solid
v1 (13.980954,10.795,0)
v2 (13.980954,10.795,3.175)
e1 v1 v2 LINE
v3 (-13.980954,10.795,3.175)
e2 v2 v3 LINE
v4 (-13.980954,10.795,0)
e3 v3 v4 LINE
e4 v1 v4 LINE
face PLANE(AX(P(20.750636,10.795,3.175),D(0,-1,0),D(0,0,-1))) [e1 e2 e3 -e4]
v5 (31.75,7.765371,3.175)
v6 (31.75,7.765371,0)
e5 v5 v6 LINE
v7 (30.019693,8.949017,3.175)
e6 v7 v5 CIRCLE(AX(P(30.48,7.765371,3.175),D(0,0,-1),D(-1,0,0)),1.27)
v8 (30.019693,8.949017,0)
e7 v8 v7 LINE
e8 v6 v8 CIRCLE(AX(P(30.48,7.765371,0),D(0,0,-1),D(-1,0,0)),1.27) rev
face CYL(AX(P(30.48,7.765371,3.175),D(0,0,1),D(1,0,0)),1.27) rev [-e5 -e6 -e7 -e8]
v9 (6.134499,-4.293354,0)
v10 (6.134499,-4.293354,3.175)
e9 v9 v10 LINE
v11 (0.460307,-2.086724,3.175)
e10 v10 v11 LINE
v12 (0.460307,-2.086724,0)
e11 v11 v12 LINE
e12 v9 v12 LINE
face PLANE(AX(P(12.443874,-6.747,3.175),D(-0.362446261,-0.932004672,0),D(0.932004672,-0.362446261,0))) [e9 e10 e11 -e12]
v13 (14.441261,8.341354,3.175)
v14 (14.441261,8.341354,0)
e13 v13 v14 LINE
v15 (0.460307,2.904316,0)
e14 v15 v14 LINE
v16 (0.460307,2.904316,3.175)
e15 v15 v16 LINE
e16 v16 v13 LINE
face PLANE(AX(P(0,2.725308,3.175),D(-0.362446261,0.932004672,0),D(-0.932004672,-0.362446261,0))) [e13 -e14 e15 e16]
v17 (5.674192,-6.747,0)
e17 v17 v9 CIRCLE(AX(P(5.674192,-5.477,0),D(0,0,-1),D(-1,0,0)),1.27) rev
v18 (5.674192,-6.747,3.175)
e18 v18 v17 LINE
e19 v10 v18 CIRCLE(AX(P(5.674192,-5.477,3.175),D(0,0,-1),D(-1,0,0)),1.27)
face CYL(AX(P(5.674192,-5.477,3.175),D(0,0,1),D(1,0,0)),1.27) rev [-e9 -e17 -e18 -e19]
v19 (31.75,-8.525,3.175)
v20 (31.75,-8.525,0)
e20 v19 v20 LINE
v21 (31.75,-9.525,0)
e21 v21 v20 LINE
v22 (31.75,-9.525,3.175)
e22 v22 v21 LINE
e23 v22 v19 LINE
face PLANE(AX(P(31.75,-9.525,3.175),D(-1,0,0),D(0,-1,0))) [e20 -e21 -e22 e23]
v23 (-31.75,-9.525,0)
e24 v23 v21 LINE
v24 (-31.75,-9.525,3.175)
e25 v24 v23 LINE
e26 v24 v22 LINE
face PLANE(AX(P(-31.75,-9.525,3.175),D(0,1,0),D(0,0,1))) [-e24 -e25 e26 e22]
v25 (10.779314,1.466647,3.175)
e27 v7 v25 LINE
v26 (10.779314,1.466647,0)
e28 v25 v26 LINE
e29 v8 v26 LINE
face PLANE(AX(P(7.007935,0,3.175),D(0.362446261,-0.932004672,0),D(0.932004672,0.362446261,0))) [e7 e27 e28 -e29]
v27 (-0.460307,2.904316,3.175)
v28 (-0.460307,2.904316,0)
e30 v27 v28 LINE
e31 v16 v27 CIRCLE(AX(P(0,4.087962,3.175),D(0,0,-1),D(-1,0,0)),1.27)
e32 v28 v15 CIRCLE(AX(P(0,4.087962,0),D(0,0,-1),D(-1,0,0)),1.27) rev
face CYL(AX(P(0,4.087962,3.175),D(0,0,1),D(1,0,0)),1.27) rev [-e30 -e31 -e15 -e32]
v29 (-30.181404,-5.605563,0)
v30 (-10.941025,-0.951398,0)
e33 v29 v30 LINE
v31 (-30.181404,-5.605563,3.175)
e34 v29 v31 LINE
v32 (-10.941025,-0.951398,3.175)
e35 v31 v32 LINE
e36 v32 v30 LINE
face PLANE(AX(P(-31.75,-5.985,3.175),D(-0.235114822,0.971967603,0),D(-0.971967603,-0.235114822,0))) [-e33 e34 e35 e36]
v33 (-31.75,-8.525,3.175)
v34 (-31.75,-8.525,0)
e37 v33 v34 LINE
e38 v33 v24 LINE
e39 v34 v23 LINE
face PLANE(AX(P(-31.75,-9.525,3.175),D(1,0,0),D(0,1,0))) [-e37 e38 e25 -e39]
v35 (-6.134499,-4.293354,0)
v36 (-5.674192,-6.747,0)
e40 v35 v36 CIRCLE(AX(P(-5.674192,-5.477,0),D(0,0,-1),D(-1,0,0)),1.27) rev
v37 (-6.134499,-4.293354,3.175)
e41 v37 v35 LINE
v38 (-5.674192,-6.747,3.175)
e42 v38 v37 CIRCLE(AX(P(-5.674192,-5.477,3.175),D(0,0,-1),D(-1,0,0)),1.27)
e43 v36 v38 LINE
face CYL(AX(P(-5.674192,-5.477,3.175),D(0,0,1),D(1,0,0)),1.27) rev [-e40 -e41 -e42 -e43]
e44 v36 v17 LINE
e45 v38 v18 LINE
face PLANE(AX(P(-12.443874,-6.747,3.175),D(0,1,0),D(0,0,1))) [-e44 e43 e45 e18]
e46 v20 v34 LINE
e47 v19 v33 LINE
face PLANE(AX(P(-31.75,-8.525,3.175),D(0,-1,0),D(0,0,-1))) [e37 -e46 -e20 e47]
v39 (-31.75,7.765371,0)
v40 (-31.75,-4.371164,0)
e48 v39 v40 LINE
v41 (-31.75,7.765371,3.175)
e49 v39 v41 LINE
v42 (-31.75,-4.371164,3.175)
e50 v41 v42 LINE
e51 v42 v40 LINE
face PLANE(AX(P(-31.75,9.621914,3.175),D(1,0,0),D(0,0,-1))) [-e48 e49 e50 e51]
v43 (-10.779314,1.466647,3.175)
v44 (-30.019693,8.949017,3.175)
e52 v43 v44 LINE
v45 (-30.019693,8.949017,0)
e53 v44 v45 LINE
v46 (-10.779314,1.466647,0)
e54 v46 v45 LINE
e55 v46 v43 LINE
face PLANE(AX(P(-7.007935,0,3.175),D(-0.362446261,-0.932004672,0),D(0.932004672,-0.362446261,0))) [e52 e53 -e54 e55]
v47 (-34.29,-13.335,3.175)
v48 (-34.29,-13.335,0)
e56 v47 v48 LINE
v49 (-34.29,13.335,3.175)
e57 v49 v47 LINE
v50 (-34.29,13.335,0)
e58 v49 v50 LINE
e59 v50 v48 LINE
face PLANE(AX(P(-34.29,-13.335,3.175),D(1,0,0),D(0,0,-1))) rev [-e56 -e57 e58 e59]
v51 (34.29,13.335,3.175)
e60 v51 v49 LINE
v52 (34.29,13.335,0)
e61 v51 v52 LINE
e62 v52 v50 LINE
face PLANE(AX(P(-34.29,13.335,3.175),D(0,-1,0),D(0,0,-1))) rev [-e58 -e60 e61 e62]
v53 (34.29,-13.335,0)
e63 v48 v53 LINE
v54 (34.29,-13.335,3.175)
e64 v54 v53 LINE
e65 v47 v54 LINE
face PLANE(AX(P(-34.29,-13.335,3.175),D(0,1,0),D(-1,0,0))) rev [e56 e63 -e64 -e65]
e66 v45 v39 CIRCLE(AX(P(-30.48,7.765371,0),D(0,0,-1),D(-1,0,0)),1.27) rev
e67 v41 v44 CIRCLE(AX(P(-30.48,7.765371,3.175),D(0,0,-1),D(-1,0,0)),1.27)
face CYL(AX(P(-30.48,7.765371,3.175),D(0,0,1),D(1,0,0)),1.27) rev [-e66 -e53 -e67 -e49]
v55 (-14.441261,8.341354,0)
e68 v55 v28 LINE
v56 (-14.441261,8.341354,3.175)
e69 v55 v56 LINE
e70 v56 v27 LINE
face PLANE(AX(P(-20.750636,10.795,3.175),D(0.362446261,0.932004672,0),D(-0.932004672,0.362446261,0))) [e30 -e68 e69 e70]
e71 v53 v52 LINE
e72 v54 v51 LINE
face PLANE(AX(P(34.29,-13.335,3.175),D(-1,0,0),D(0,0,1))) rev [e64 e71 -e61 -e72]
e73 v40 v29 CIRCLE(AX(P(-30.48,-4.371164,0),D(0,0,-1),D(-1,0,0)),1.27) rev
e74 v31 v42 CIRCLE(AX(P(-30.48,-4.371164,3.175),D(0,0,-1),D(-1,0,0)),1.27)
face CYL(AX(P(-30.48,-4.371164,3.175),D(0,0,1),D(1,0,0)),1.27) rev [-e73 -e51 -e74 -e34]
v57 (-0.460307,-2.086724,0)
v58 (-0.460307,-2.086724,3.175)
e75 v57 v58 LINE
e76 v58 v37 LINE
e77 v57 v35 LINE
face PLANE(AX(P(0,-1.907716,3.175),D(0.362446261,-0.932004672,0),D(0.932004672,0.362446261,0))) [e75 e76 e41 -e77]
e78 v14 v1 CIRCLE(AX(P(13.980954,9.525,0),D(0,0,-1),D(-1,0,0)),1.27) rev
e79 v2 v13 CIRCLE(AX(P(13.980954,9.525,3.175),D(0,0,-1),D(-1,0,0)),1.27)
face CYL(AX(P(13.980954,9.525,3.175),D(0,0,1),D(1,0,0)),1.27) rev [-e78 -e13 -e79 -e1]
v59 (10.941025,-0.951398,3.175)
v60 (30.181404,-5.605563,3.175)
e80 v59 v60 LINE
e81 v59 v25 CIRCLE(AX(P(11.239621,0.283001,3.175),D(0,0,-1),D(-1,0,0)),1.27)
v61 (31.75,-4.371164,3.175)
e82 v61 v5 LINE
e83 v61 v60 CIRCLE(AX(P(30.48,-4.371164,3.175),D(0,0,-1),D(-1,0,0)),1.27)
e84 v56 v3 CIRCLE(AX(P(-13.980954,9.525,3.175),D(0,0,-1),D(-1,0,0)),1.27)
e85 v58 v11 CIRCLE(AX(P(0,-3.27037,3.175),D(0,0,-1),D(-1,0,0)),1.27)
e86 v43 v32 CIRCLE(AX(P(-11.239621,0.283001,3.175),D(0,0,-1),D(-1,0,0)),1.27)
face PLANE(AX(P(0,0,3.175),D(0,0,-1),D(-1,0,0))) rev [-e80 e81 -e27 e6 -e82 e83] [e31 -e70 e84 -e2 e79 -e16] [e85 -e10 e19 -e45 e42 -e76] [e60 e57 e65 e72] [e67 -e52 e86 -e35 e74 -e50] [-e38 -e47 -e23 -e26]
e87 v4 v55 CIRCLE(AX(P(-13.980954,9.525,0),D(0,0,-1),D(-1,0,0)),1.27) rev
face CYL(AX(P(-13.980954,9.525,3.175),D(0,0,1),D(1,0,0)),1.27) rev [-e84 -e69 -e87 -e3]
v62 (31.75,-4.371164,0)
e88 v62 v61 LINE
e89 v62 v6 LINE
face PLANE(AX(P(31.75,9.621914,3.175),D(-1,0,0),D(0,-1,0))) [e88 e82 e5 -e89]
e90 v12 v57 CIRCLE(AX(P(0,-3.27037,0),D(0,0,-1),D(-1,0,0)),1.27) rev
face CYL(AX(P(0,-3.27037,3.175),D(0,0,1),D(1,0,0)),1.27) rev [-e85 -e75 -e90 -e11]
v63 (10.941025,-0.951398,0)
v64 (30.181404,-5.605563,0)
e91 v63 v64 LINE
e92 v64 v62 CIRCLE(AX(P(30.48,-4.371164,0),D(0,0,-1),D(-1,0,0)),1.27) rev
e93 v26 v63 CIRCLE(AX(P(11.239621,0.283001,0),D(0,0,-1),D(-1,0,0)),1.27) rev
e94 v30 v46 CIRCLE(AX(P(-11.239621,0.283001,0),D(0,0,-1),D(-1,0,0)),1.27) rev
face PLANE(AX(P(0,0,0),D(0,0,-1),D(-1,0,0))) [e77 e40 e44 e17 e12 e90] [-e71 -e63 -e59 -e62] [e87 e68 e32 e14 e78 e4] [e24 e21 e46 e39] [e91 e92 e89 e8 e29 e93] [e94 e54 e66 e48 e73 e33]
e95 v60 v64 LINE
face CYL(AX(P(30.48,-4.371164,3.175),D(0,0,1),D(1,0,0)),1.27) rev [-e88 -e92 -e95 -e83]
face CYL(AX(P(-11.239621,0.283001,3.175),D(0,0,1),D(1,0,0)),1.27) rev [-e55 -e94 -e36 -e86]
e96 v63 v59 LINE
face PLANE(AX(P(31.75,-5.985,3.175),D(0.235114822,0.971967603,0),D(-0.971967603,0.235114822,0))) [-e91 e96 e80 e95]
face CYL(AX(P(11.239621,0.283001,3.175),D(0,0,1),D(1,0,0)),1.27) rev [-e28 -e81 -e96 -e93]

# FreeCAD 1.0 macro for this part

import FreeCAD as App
import Part
import Sketcher
from FreeCAD import Vector
Q = App.Units.Quantity


def edges_at(feature, points):
    """Names of the edges that pass closest to the given points."""
    edges = feature.Shape.Edges
    near = lambda p: min(range(len(edges)), key=lambda i: edges[i].distToShape(Part.Vertex(*p))[0])
    return sorted({f"Edge{near(p) + 1}" for p in points})


def add_polygon(sketch, points):
    """Adds a closed chain of lines whose ends are joined by coincident constraints."""
    first, n = sketch.GeometryCount, len(points)
    for a, b in zip(points, points[1:] + points[:1]):
        sketch.addGeometry(Part.LineSegment(App.Vector(*a, 0), App.Vector(*b, 0)), False)
    for i in range(n):
        sketch.addConstraint(Sketcher.Constraint("Coincident", first + i, 2, first + (i + 1) % n, 1))

doc = App.newDocument("Part")
body = doc.addObject("PartDesign::Body", "Body")

# Sketch on XY plane
sketch1 = body.newObject("Sketcher::SketchObject", "Sketch")
sketch1.AttachmentSupport = (doc.getObject("XY_Plane"), [""])
sketch1.MapMode = "FlatFace"
add_polygon(sketch1, [(-34.3, 13.3), (-34.3, -13.3), (34.3, -13.3), (34.3, 13.3)])  # lines 0-3
add_polygon(sketch1, [(31.8, -9.5), (-31.8, -9.5), (-31.8, -8.5), (31.8, -8.5)])  # lines 4-7
add_polygon(sketch1, [(-12.4, -6.7), (0, -1.9), (12.4, -6.7)])  # lines 8-10
add_polygon(sketch1, [(-31.8, -6), (-31.8, 9.6), (-7, 0)])  # lines 11-13
add_polygon(sketch1, [(31.8, -6), (7, 0), (31.8, 9.6)])  # lines 14-16
add_polygon(sketch1, [(0, 2.7), (-20.8, 10.8), (20.8, 10.8)])  # lines 17-19
sketch1.addConstraint(Sketcher.Constraint("Vertical", 0))
sketch1.addConstraint(Sketcher.Constraint("Horizontal", 1))
sketch1.addConstraint(Sketcher.Constraint("Vertical", 2))
sketch1.addConstraint(Sketcher.Constraint("Horizontal", 3))
sketch1.addConstraint(Sketcher.Constraint("Horizontal", 4))
sketch1.addConstraint(Sketcher.Constraint("Vertical", 5))
sketch1.addConstraint(Sketcher.Constraint("Horizontal", 6))
sketch1.addConstraint(Sketcher.Constraint("Vertical", 7))
sketch1.addConstraint(Sketcher.Constraint("Horizontal", 10))
sketch1.addConstraint(Sketcher.Constraint("Vertical", 11))
sketch1.addConstraint(Sketcher.Constraint("Vertical", 16))
sketch1.addConstraint(Sketcher.Constraint("Horizontal", 18))
sketch1.addConstraint(Sketcher.Constraint("Symmetric", 0, 2, 2, 2, -1, 1))
sketch1.addConstraint(Sketcher.Constraint("Symmetric", 12, 2, 14, 2, -1, 1))
sketch1.addConstraint(Sketcher.Constraint("Symmetric", 11, 2, 15, 2, -2))
sketch1.addConstraint(Sketcher.Constraint("PointOnObject", 8, 2, -2))
sketch1.addConstraint(Sketcher.Constraint("PointOnObject", 12, 2, -1))
sketch1.addConstraint(Sketcher.Constraint("PointOnObject", 19, 2, -2))
sketch1.addConstraint(Sketcher.Constraint("Parallel", 9, 12))
sketch1.addConstraint(Sketcher.Constraint("Parallel", 8, 15))
sketch1.addConstraint(Sketcher.Constraint("Parallel", 12, 17))
sketch1.addConstraint(Sketcher.Constraint("Parallel", 15, 19))
sketch1.addConstraint(Sketcher.Constraint("Horizontal", 13, 2, 16, 2))
sketch1.addConstraint(Sketcher.Constraint("Vertical", 5, 2, 11, 2))
sketch1.addConstraint(Sketcher.Constraint("Vertical", 7, 2, 15, 2))
sketch1.addConstraint(Sketcher.Constraint("DistanceX", 1, 1, 1, 2, Q("2.7 in")))
sketch1.addConstraint(Sketcher.Constraint("DistanceX", 4, 2, 4, 1, Q("2.5 in")))
sketch1.addConstraint(Sketcher.Constraint("DistanceY", 0, 2, 0, 1, Q("1.05 in")))
sketch1.addConstraint(Sketcher.Constraint("DistanceY", 4, 2, 3, 2, Q("0.9 in")))
sketch1.addConstraint(Sketcher.Constraint("DistanceY", 5, 2, 13, 2, Q("0.1 in")))
sketch1.addConstraint(Sketcher.Constraint("DistanceY", 17, 2, 3, 2, Q("0.1 in")))
sketch1.addConstraint(Sketcher.Constraint("DistanceY", 6, 2, 9, 2, Q("0.07 in")))
sketch1.addConstraint(Sketcher.Constraint("DistanceY", 5, 1, 5, 2, Q("1 mm")))
sketch1.addConstraint(Sketcher.Constraint("DistanceX", 18, 1, 18, 2, Q("41.501272 mm")))
sketch1.addConstraint(Sketcher.Constraint("DistanceX", 17, 2, 12, 2, Q("13.742701 mm")))
sketch1.addConstraint(Sketcher.Constraint("Distance", 8, Q("13.351729 mm")))
sketch1.addConstraint(Sketcher.Constraint("Distance", 17, Q("22.264519 mm")))
pad1 = body.newObject("PartDesign::Pad", "Pad")
pad1.Profile = sketch1
pad1.Length = Q("0.125 in")
doc.recompute()

fillet = body.newObject("PartDesign::Fillet", "Fillet")
fillet.Base = (pad1, edges_at(pad1, [
    (20.751, 10.795, 1.587),
    (-20.751, 10.795, 1.587),
    (0, 2.725, 1.587),
    (-7.008, 0, 1.587),
    (-31.75, 9.622, 1.587),
    (-31.75, -5.985, 1.587),
    (7.008, 0, 1.587),
    (31.75, -5.985, 1.587),
    (31.75, 9.622, 1.587),
    (12.444, -6.747, 1.587),
    (0, -1.908, 1.587),
    (-12.444, -6.747, 1.587),
]))
fillet.Radius = Q("0.05 in")

doc.recompute()
